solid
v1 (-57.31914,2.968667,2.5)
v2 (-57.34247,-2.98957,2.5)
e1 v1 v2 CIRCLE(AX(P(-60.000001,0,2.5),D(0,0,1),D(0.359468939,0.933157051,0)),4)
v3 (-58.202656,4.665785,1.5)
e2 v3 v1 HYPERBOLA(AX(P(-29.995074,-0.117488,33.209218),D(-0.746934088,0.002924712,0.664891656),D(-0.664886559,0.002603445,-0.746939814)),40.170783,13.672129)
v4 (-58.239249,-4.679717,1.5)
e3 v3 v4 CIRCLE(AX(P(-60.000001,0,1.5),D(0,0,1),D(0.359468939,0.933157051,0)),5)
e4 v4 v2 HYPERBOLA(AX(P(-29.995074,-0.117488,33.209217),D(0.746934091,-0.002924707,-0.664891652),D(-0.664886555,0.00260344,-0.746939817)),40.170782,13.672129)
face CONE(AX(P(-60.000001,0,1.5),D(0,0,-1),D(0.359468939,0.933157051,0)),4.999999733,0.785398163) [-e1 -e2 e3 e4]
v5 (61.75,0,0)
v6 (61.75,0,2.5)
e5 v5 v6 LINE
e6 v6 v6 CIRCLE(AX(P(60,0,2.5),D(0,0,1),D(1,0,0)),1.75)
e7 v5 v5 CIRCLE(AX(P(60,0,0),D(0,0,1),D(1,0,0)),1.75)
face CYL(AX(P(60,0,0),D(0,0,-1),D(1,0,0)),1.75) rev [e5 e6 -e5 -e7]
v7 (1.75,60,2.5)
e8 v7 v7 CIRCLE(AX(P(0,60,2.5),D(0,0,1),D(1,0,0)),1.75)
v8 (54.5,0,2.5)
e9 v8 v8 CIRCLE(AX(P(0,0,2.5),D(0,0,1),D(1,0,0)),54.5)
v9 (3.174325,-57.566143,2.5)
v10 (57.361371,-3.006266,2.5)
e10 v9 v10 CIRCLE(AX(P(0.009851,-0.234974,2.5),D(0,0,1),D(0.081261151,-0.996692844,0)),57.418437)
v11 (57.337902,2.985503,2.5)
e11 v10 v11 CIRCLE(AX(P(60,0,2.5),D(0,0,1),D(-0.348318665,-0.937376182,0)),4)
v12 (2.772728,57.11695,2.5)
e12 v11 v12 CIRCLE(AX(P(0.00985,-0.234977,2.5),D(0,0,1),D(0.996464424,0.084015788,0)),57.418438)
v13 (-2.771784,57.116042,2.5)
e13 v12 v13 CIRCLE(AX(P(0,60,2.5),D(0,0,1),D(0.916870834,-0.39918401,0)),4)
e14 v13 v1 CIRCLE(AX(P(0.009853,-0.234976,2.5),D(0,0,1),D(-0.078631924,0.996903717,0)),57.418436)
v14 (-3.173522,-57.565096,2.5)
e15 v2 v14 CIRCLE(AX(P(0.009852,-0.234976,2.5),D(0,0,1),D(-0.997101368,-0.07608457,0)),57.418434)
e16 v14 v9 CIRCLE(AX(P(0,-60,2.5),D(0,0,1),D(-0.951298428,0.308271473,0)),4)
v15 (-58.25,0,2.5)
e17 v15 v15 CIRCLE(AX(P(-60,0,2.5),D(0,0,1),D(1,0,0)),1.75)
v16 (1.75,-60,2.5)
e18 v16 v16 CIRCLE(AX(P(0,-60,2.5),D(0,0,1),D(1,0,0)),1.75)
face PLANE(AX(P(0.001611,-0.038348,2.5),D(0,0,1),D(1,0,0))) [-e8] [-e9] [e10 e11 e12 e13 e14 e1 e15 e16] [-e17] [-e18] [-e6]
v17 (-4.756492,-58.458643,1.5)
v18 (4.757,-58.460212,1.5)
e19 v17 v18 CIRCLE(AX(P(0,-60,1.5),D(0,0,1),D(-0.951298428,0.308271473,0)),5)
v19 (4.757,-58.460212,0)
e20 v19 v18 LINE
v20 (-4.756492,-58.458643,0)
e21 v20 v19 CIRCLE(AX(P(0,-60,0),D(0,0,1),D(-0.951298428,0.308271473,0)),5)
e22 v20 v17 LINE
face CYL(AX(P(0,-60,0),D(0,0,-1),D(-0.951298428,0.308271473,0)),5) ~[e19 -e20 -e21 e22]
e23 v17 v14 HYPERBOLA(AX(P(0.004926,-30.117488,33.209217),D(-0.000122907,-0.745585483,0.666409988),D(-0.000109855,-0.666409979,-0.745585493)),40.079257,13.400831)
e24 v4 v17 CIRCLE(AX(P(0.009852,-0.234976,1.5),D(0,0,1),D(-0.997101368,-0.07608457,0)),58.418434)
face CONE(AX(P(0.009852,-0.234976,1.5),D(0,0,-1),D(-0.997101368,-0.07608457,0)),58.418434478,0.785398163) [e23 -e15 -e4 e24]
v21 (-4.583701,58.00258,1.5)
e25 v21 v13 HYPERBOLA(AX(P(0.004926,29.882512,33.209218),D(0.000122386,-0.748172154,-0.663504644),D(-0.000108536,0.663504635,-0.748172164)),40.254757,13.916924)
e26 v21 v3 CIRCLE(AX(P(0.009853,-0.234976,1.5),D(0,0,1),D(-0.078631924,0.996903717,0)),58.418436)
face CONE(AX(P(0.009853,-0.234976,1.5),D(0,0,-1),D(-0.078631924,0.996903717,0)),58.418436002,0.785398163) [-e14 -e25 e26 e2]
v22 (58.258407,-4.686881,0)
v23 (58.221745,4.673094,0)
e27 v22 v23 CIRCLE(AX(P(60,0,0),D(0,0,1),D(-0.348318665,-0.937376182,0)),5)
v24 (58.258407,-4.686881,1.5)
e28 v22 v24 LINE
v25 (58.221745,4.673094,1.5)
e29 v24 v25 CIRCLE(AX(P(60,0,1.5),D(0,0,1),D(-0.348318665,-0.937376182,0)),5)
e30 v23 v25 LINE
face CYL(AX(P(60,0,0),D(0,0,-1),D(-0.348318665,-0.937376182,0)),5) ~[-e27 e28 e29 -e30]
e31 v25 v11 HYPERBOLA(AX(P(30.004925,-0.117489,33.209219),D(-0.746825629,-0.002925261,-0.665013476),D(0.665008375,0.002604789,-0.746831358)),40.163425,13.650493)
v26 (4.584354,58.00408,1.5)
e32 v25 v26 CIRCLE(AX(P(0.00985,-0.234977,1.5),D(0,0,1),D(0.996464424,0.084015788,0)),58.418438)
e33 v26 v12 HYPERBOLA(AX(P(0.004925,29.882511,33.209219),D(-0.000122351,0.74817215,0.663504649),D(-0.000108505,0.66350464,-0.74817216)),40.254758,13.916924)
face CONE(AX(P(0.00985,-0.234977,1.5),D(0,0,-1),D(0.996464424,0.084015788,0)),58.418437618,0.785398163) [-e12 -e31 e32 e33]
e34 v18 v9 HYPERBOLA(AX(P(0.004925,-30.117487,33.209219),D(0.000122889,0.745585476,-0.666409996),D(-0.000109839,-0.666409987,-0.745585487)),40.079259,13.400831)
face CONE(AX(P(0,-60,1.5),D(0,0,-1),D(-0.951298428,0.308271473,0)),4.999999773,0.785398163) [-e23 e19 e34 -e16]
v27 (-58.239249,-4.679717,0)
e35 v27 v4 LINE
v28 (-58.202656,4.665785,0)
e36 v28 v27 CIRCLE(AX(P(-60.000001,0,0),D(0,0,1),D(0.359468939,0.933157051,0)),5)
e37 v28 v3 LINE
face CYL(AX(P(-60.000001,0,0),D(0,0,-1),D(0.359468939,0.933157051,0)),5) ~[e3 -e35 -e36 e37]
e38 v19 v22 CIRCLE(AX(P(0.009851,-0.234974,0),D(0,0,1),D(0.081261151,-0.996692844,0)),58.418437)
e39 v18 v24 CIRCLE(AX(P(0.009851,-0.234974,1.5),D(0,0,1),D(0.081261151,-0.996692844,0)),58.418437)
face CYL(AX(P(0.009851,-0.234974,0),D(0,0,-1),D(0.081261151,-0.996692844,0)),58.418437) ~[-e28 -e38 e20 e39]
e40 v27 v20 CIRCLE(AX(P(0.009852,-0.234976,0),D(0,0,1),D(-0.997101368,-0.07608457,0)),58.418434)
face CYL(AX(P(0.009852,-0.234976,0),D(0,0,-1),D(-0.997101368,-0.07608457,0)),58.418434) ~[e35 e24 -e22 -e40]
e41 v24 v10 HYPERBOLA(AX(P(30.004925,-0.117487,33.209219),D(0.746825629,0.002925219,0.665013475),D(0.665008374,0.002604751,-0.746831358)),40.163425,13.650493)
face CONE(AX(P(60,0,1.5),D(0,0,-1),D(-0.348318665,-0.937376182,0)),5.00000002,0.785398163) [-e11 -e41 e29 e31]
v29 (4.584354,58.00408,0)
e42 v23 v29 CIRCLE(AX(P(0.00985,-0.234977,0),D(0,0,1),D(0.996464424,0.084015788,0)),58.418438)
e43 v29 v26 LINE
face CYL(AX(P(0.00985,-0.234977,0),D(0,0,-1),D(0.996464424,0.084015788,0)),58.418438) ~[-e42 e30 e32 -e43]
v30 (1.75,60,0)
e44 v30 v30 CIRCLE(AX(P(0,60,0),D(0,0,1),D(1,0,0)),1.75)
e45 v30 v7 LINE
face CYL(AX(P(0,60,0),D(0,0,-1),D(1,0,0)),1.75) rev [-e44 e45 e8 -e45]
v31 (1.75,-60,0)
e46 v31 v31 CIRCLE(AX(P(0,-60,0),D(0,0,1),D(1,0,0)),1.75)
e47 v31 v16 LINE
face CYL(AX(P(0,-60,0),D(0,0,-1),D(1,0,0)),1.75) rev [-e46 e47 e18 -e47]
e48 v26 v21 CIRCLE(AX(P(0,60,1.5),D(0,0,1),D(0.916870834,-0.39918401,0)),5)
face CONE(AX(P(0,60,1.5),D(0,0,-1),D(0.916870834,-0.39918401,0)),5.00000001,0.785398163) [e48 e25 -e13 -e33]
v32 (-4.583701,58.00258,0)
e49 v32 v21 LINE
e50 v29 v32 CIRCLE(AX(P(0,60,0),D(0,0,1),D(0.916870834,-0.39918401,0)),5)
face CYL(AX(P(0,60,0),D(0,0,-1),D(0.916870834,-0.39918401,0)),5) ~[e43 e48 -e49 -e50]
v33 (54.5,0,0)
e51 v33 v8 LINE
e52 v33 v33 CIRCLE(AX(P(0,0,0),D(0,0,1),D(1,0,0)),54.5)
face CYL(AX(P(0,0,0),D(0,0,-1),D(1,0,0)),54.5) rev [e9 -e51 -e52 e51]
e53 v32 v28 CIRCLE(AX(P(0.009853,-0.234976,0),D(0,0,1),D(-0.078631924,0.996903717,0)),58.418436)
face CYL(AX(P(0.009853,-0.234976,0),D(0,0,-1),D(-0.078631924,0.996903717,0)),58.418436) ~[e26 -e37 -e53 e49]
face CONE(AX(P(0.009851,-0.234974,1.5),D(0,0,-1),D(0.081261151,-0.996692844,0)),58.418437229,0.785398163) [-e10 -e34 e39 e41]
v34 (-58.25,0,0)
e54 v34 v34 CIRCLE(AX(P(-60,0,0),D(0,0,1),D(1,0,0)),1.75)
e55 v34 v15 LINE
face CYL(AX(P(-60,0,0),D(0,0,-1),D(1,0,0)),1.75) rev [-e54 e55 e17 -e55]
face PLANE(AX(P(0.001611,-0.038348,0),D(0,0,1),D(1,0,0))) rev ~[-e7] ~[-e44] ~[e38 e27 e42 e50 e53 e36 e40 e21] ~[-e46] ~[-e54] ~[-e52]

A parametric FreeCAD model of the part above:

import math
import FreeCAD as App
import Part
import Sketcher

V = App.Vector


def edges_at(feature, points):
    """Names of the edges that pass closest to the given points."""
    edges = feature.Shape.Edges
    near = lambda p: min(range(len(edges)), key=lambda i: edges[i].distToShape(Part.Vertex(*p))[0])
    return sorted({f"Edge{near(p) + 1}" for p in points})

doc = App.newDocument("Part")
params = doc.addObject("Spreadsheet::Sheet", "Params")
for row, (alias, value) in enumerate([
    ("sketch1_diameter", "109 mm"),
    ("sketch1_radius", "5 mm"),
    ("sketch1_diameter2", "3.5 mm"),
    ("pad1_length", "2.5 mm"),
    ("chamfer_size", "1 mm"),
], start=1):
    params.set(f"A{row}", alias)
    params.set(f"B{row}", "=" + value)
    params.setAlias(f"B{row}", alias)

body = doc.addObject("PartDesign::Body", "Body")

# Sketch on XY plane
sketch1 = body.newObject("Sketcher::SketchObject", "Sketch")
sketch1.AttachmentSupport = (doc.getObject("XY_Plane"), [""])
sketch1.MapMode = "FlatFace"
sketch1.addGeometry(Part.ArcOfCircle(Part.Circle(V(0, 60, 0), V(0, 0, 1), 5), math.radians(-24), math.radians(204)), False)
sketch1.addGeometry(Part.ArcOfCircle(Part.Circle(V(0, -0.2, 0), V(0, 0, 1), 58.4), math.radians(95), math.radians(175)), False)
sketch1.addGeometry(Part.ArcOfCircle(Part.Circle(V(-60, 0, 0), V(0, 0, 1), 5), math.radians(69), math.radians(291)), False)
sketch1.addGeometry(Part.ArcOfCircle(Part.Circle(V(0, -0.2, 0), V(0, 0, 1), 58.4), math.radians(-176), math.radians(-95)), False)
sketch1.addGeometry(Part.ArcOfCircle(Part.Circle(V(0, -60, 0), V(0, 0, 1), 5), math.radians(162), math.radians(378)), False)
sketch1.addGeometry(Part.ArcOfCircle(Part.Circle(V(0, -0.2, 0), V(0, 0, 1), 58.4), math.radians(-85), math.radians(-4)), False)
sketch1.addGeometry(Part.ArcOfCircle(Part.Circle(V(60, 0, 0), V(0, 0, 1), 5), math.radians(-110), math.radians(111)), False)
sketch1.addGeometry(Part.ArcOfCircle(Part.Circle(V(0, -0.2, 0), V(0, 0, 1), 58.4), math.radians(5), math.radians(86)), False)
sketch1.addGeometry(Part.Circle(V(0, -60, 0), V(0, 0, 1), 1.8), False)
sketch1.addGeometry(Part.Circle(V(-60, 0, 0), V(0, 0, 1), 1.8), False)
sketch1.addGeometry(Part.Circle(V(0, 0, 0), V(0, 0, 1), 54.5), False)
sketch1.addGeometry(Part.Circle(V(60, 0, 0), V(0, 0, 1), 1.8), False)
sketch1.addGeometry(Part.Circle(V(0, 60, 0), V(0, 0, 1), 1.8), False)
sketch1.addConstraint(Sketcher.Constraint("Coincident", 0, 2, 1, 1))
sketch1.addConstraint(Sketcher.Constraint("Coincident", 1, 2, 2, 1))
sketch1.addConstraint(Sketcher.Constraint("Coincident", 2, 2, 3, 1))
sketch1.addConstraint(Sketcher.Constraint("Coincident", 3, 2, 4, 1))
sketch1.addConstraint(Sketcher.Constraint("Coincident", 4, 2, 5, 1))
sketch1.addConstraint(Sketcher.Constraint("Coincident", 5, 2, 6, 1))
sketch1.addConstraint(Sketcher.Constraint("Coincident", 6, 2, 7, 1))
sketch1.addConstraint(Sketcher.Constraint("Coincident", 7, 2, 0, 1))
sketch1.addConstraint(Sketcher.Constraint("Coincident", 10, 3, -1, 1))
sketch1.addConstraint(Sketcher.Constraint("Coincident", 3, 3, 1, 3))
sketch1.addConstraint(Sketcher.Constraint("Coincident", 5, 3, 1, 3))
sketch1.addConstraint(Sketcher.Constraint("Coincident", 7, 3, 1, 3))
sketch1.addConstraint(Sketcher.Constraint("Coincident", 8, 3, 4, 3))
sketch1.addConstraint(Sketcher.Constraint("Coincident", 9, 3, 2, 3))
sketch1.addConstraint(Sketcher.Constraint("Coincident", 11, 3, 6, 3))
sketch1.addConstraint(Sketcher.Constraint("Coincident", 12, 3, 0, 3))
sketch1.addConstraint(Sketcher.Constraint("Equal", 0, 2))
sketch1.addConstraint(Sketcher.Constraint("Equal", 1, 3))
sketch1.addConstraint(Sketcher.Constraint("Equal", 2, 4))
sketch1.addConstraint(Sketcher.Constraint("Equal", 1, 5))
sketch1.addConstraint(Sketcher.Constraint("Equal", 4, 6))
sketch1.addConstraint(Sketcher.Constraint("Equal", 5, 7))
sketch1.addConstraint(Sketcher.Constraint("Equal", 8, 9))
sketch1.addConstraint(Sketcher.Constraint("Equal", 9, 11))
sketch1.addConstraint(Sketcher.Constraint("Equal", 11, 12))
sketch1.addConstraint(Sketcher.Constraint("Symmetric", 0, 3, 4, 3, -1, 1))
sketch1.addConstraint(Sketcher.Constraint("Symmetric", 2, 3, 6, 3, -1, 1))
sketch1.addConstraint(Sketcher.Constraint("PointOnObject", 0, 3, -2))
sketch1.addConstraint(Sketcher.Constraint("PointOnObject", 2, 3, -1))
sketch1.addConstraint(Sketcher.Constraint("Diameter", 10, 109.0))
sketch1.addConstraint(Sketcher.Constraint("Radius", 0, 5.0))
sketch1.addConstraint(Sketcher.Constraint("Diameter", 8, 3.5))
sketch1.addConstraint(Sketcher.Constraint("DistanceY", -1, 1, 0, 3, 60.0))
sketch1.addConstraint(Sketcher.Constraint("DistanceX", 2, 3, -1, 1, 60.000001))
sketch1.addConstraint(Sketcher.Constraint("DistanceX", -1, 1, 4, 2, 4.757))
sketch1.addConstraint(Sketcher.Constraint("Radius", 1, 58.418436))
sketch1.addConstraint(Sketcher.Constraint("DistanceY", 2, 2, 1, 2, 9.345502))
sketch1.setExpression("Constraints[29]", "Params.sketch1_diameter")
sketch1.setExpression("Constraints[30]", "Params.sketch1_radius")
sketch1.setExpression("Constraints[31]", "Params.sketch1_diameter2")
pad1 = body.newObject("PartDesign::Pad", "Pad")
pad1.Profile = sketch1
pad1.setExpression("Length", "Params.pad1_length")
doc.recompute()

chamfer = body.newObject("PartDesign::Chamfer", "Chamfer")
chamfer.Base = (pad1, edges_at(pad1, [
    (41.422, -41.438, 2.5),
    (-0.001, -65, 2.5),
    (-41.412, -41.429, 2.5),
    (-65, 0.02, 2.5),
    (-41.189, 41.182, 2.5),
    (65, 0.02, 2.5),
    (41.199, 41.191, 2.5),
    (-0.001, 65, 2.5),
]))
chamfer.setExpression("Size", "Params.chamfer_size")

doc.recompute()
